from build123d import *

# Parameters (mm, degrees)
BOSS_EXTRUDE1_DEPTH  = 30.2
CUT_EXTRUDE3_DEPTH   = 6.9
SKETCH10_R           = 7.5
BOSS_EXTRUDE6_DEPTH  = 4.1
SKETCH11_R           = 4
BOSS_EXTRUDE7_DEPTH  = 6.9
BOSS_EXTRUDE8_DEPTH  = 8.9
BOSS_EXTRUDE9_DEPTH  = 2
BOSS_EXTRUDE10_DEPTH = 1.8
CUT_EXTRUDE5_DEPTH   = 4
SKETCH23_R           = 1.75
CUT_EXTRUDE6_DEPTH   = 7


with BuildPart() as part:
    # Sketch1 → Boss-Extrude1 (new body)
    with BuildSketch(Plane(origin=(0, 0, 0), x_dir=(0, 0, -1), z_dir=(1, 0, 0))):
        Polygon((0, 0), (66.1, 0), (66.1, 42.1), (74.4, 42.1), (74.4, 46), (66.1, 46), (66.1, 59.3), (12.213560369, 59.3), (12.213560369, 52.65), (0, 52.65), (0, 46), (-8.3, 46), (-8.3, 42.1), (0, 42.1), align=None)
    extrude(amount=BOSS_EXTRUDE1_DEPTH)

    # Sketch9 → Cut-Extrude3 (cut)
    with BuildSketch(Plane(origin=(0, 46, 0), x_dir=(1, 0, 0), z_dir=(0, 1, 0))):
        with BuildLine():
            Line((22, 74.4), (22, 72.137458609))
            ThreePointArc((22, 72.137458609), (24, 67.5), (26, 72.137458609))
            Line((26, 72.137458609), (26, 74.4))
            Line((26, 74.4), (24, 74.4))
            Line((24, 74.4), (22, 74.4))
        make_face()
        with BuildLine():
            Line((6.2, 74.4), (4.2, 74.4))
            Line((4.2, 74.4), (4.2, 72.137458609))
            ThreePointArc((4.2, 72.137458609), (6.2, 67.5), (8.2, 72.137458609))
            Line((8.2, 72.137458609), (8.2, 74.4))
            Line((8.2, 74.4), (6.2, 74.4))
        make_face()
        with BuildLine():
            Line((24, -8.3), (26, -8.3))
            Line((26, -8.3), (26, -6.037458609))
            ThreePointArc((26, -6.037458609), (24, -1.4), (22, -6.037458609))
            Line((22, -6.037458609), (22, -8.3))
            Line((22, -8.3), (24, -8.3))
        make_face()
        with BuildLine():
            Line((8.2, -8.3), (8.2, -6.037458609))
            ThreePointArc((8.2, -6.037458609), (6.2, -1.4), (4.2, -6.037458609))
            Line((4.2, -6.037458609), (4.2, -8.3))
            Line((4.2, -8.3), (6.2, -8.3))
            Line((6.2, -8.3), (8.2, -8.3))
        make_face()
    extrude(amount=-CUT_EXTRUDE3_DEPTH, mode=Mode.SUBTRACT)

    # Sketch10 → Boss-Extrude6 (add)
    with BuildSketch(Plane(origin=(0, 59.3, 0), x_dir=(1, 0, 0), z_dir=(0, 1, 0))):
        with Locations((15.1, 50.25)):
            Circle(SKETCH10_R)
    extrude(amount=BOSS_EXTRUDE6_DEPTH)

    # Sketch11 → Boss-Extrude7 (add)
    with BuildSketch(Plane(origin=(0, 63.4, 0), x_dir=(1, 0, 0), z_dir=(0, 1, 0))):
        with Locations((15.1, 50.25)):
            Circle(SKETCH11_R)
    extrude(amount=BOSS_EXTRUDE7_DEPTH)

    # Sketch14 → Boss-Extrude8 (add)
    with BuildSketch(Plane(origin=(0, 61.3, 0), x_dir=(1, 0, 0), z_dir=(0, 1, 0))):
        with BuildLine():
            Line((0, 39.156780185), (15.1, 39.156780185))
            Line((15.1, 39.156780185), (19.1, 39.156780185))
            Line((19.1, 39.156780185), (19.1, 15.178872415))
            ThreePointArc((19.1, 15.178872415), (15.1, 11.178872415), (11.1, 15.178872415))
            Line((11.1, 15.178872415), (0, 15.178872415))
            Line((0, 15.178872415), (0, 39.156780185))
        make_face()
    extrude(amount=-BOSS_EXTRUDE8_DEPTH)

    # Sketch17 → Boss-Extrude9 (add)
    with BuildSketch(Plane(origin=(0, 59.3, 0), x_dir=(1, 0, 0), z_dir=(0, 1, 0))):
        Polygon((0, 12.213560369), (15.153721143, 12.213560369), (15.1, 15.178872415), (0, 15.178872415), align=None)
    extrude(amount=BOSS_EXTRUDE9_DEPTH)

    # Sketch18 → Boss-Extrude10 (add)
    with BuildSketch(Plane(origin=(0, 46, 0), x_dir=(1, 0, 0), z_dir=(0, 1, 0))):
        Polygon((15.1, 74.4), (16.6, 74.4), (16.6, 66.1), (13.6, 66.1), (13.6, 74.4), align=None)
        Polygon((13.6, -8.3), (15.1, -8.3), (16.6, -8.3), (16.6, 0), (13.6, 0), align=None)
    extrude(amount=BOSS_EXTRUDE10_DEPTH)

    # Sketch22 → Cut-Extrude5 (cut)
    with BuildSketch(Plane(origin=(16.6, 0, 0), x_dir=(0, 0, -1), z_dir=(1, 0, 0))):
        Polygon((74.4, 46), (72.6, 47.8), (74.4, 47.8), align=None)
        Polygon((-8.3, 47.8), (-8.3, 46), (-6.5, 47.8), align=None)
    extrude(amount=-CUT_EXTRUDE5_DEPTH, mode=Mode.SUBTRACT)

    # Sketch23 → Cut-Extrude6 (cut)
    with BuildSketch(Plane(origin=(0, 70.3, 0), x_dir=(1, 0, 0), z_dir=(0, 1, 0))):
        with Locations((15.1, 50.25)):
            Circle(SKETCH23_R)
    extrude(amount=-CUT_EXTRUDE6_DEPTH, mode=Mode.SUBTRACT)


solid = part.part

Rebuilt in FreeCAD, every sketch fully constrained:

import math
import FreeCAD as App
import Part
import Sketcher

V = App.Vector

doc = App.newDocument("Part")
body = doc.addObject("PartDesign::Body", "Body")

sketch1 = body.newObject("Sketcher::SketchObject", "Sketch")
sketch1.AttachmentSupport = (doc.getObject("YZ_Plane"), [""])
sketch1.MapMode = "FlatFace"
sketch1.addGeometry([
    Part.LineSegment(V(0, 0, 0), V(0, -66.1, 0)),
    Part.LineSegment(V(0, -66.1, 0), V(42.1, -66.1, 0)),
    Part.LineSegment(V(42.1, -66.1, 0), V(42.1, -74.4, 0)),
    Part.LineSegment(V(42.1, -74.4, 0), V(46, -74.4, 0)),
    Part.LineSegment(V(46, -74.4, 0), V(46, -66.1, 0)),
    Part.LineSegment(V(46, -66.1, 0), V(59.3, -66.1, 0)),
    Part.LineSegment(V(59.3, -66.1, 0), V(59.3, -12.21356, 0)),
    Part.LineSegment(V(59.3, -12.21356, 0), V(52.65, -12.21356, 0)),
    Part.LineSegment(V(52.65, -12.21356, 0), V(52.65, 0, 0)),
    Part.LineSegment(V(52.65, 0, 0), V(46, 0, 0)),
    Part.LineSegment(V(46, 0, 0), V(46, 8.3, 0)),
    Part.LineSegment(V(46, 8.3, 0), V(42.1, 8.3, 0)),
    Part.LineSegment(V(42.1, 8.3, 0), V(42.1, 0, 0)),
    Part.LineSegment(V(42.1, 0, 0), V(0, 0, 0)),
], False)
sketch1.addConstraint([
    Sketcher.Constraint("Coincident", 0, 2, 1, 1),
    Sketcher.Constraint("Coincident", 1, 2, 2, 1),
    Sketcher.Constraint("Coincident", 2, 2, 3, 1),
    Sketcher.Constraint("Coincident", 3, 2, 4, 1),
    Sketcher.Constraint("Coincident", 4, 2, 5, 1),
    Sketcher.Constraint("Coincident", 5, 2, 6, 1),
    Sketcher.Constraint("Coincident", 6, 2, 7, 1),
    Sketcher.Constraint("Coincident", 7, 2, 8, 1),
    Sketcher.Constraint("Coincident", 8, 2, 9, 1),
    Sketcher.Constraint("Coincident", 9, 2, 10, 1),
    Sketcher.Constraint("Coincident", 10, 2, 11, 1),
    Sketcher.Constraint("Coincident", 11, 2, 12, 1),
    Sketcher.Constraint("Coincident", 12, 2, 13, 1),
    Sketcher.Constraint("Coincident", 13, 2, 0, 1),
    Sketcher.Constraint("Vertical", 0),
    Sketcher.Constraint("Horizontal", 1),
    Sketcher.Constraint("Vertical", 2),
    Sketcher.Constraint("Horizontal", 3),
    Sketcher.Constraint("Vertical", 4),
    Sketcher.Constraint("Horizontal", 5),
    Sketcher.Constraint("Vertical", 6),
    Sketcher.Constraint("Horizontal", 7),
    Sketcher.Constraint("Vertical", 8),
    Sketcher.Constraint("Horizontal", 9),
    Sketcher.Constraint("Vertical", 10),
    Sketcher.Constraint("Horizontal", 11),
    Sketcher.Constraint("Vertical", 12),
    Sketcher.Constraint("Horizontal", 13),
    Sketcher.Constraint("Coincident", 13, 2, -1, 1),
    Sketcher.Constraint("PointOnObject", 8, 2, -1),
    Sketcher.Constraint("Horizontal", 1, 2, 4, 2),
    Sketcher.Constraint("Vertical", 4, 2, 9, 2),
    Sketcher.Constraint("Vertical", 2, 2, 11, 2),
    Sketcher.Constraint("Equal", 7, 9),
    Sketcher.Constraint("Equal", 4, 10),
    Sketcher.Constraint("DistanceX", 1, 1, 1, 2, 42.1),
    Sketcher.Constraint("DistanceX", 3, 1, 3, 2, 3.9),
    Sketcher.Constraint("DistanceX", 5, 1, 5, 2, 13.3),
    Sketcher.Constraint("DistanceY", 0, 2, 0, 1, 66.1),
    Sketcher.Constraint("DistanceY", 2, 2, 2, 1, 8.3),
    Sketcher.Constraint("DistanceY", 6, 1, 6, 2, 53.88644),
])
pad1 = body.newObject("PartDesign::Pad", "Pad")
pad1.Profile = sketch1
pad1.Length = 30.2

sketch2 = body.newObject("Sketcher::SketchObject", "Sketch001")
sketch2.AttachmentSupport = (doc.getObject("XZ_Plane"), [""])
sketch2.MapMode = "FlatFace"
sketch2.AttachmentOffset = App.Placement(V(0, 0, -46), App.Rotation())
sketch2.addGeometry([
    Part.LineSegment(V(22, -74.4, 0), V(22, -72.137459, 0)),
    Part.ArcOfCircle(Part.Circle(V(24, -70.25, 0), V(0, 0, 1), 2.75), math.radians(-43.341758), math.radians(223.341758)),
    Part.LineSegment(V(26, -72.137459, 0), V(26, -74.4, 0)),
    Part.LineSegment(V(26, -74.4, 0), V(22, -74.4, 0)),
    Part.LineSegment(V(4.2, -74.4, 0), V(4.2, -72.137459, 0)),
    Part.ArcOfCircle(Part.Circle(V(6.2, -70.25, 0), V(0, 0, 1), 2.75), math.radians(-43.341758), math.radians(223.341758)),
    Part.LineSegment(V(8.2, -72.137459, 0), V(8.2, -74.4, 0)),
    Part.LineSegment(V(8.2, -74.4, 0), V(4.2, -74.4, 0)),
    Part.LineSegment(V(26, 8.3, 0), V(26, 6.037459, 0)),
    Part.ArcOfCircle(Part.Circle(V(24, 4.15, 0), V(0, 0, 1), 2.75), math.radians(136.658242), math.radians(403.341758)),
    Part.LineSegment(V(22, 6.037459, 0), V(22, 8.3, 0)),
    Part.LineSegment(V(22, 8.3, 0), V(26, 8.3, 0)),
    Part.LineSegment(V(8.2, 8.3, 0), V(8.2, 6.037459, 0)),
    Part.ArcOfCircle(Part.Circle(V(6.2, 4.15, 0), V(0, 0, 1), 2.75), math.radians(136.658242), math.radians(403.341758)),
    Part.LineSegment(V(4.2, 6.037459, 0), V(4.2, 8.3, 0)),
    Part.LineSegment(V(4.2, 8.3, 0), V(8.2, 8.3, 0)),
], False)
sketch2.addConstraint([
    Sketcher.Constraint("Coincident", 0, 2, 1, 2),
    Sketcher.Constraint("Coincident", 1, 1, 2, 1),
    Sketcher.Constraint("Coincident", 2, 2, 3, 1),
    Sketcher.Constraint("Coincident", 3, 2, 0, 1),
    Sketcher.Constraint("Coincident", 4, 2, 5, 2),
    Sketcher.Constraint("Coincident", 5, 1, 6, 1),
    Sketcher.Constraint("Coincident", 6, 2, 7, 1),
    Sketcher.Constraint("Coincident", 7, 2, 4, 1),
    Sketcher.Constraint("Coincident", 8, 2, 9, 2),
    Sketcher.Constraint("Coincident", 9, 1, 10, 1),
    Sketcher.Constraint("Coincident", 10, 2, 11, 1),
    Sketcher.Constraint("Coincident", 11, 2, 8, 1),
    Sketcher.Constraint("Coincident", 12, 2, 13, 2),
    Sketcher.Constraint("Coincident", 13, 1, 14, 1),
    Sketcher.Constraint("Coincident", 14, 2, 15, 1),
    Sketcher.Constraint("Coincident", 15, 2, 12, 1),
    Sketcher.Constraint("Vertical", 0),
    Sketcher.Constraint("Vertical", 2),
    Sketcher.Constraint("Horizontal", 3),
    Sketcher.Constraint("Vertical", 4),
    Sketcher.Constraint("Vertical", 6),
    Sketcher.Constraint("Horizontal", 7),
    Sketcher.Constraint("Vertical", 8),
    Sketcher.Constraint("Vertical", 10),
    Sketcher.Constraint("Horizontal", 11),
    Sketcher.Constraint("Vertical", 12),
    Sketcher.Constraint("Vertical", 14),
    Sketcher.Constraint("Horizontal", 15),
    Sketcher.Constraint("Equal", 1, 5),
    Sketcher.Constraint("Equal", 5, 9),
    Sketcher.Constraint("Equal", 9, 13),
    Sketcher.Constraint("Horizontal", 1, 3, 5, 3),
    Sketcher.Constraint("Horizontal", 9, 3, 13, 3),
    Sketcher.Constraint("Horizontal", 0, 2, 1, 1),
    Sketcher.Constraint("Horizontal", 1, 1, 4, 2),
    Sketcher.Constraint("Horizontal", 4, 2, 5, 1),
    Sketcher.Constraint("Horizontal", 3, 2, 6, 2),
    Sketcher.Constraint("Horizontal", 8, 2, 9, 1),
    Sketcher.Constraint("Horizontal", 9, 1, 12, 2),
    Sketcher.Constraint("Horizontal", 12, 2, 13, 1),
    Sketcher.Constraint("Horizontal", 11, 2, 14, 2),
    Sketcher.Constraint("Vertical", 1, 3, 9, 3),
    Sketcher.Constraint("Vertical", 5, 3, 13, 3),
    Sketcher.Constraint("Vertical", 2, 2, 8, 2),
    Sketcher.Constraint("Equal", 6, 8),
    Sketcher.Constraint("DistanceX", 3, 2, 3, 1, 4.0),
    Sketcher.Constraint("Radius", 1, 2.75),
    Sketcher.Constraint("DistanceX", -1, 1, 1, 3, 24.0),
    Sketcher.Constraint("DistanceX", -1, 1, 5, 3, 6.2),
    Sketcher.Constraint("DistanceY", 2, 2, -1, 1, 74.4),
    Sketcher.Constraint("DistanceY", -1, 1, 10, 2, 8.3),
    Sketcher.Constraint("DistanceY", 1, 3, 9, 3, 74.4),
])
pocket1 = body.newObject("PartDesign::Pocket", "Pocket")
pocket1.Profile = sketch2
pocket1.Length = 6.9
pocket1.Reversed = True

sketch3 = body.newObject("Sketcher::SketchObject", "Sketch002")
sketch3.AttachmentSupport = (doc.getObject("XZ_Plane"), [""])
sketch3.MapMode = "FlatFace"
sketch3.AttachmentOffset = App.Placement(V(0, 0, -59.3), App.Rotation())
sketch3.addGeometry(Part.Circle(V(15.1, -50.25, 0), V(0, 0, 1), 7.5), False)
sketch3.addConstraint([
    Sketcher.Constraint("Diameter", 0, 15.0),
    Sketcher.Constraint("DistanceX", -1, 1, 0, 3, 15.1),
    Sketcher.Constraint("DistanceY", 0, 3, -1, 1, 50.25),
])
pad2 = body.newObject("PartDesign::Pad", "Pad001")
pad2.Profile = sketch3
pad2.Length = 4.1
pad2.Reversed = True

sketch4 = body.newObject("Sketcher::SketchObject", "Sketch003")
sketch4.AttachmentSupport = (doc.getObject("XZ_Plane"), [""])
sketch4.MapMode = "FlatFace"
sketch4.AttachmentOffset = App.Placement(V(0, 0, -63.4), App.Rotation())
sketch4.addGeometry(Part.Circle(V(15.1, -50.25, 0), V(0, 0, 1), 4), False)
sketch4.addConstraint([
    Sketcher.Constraint("Diameter", 0, 8.0),
    Sketcher.Constraint("DistanceX", -1, 1, 0, 3, 15.1),
    Sketcher.Constraint("DistanceY", 0, 3, -1, 1, 50.25),
])
pad3 = body.newObject("PartDesign::Pad", "Pad002")
pad3.Profile = sketch4
pad3.Length = 6.9
pad3.Reversed = True

sketch5 = body.newObject("Sketcher::SketchObject", "Sketch004")
sketch5.AttachmentSupport = (doc.getObject("XZ_Plane"), [""])
sketch5.MapMode = "FlatFace"
sketch5.AttachmentOffset = App.Placement(V(0, 0, -61.3), App.Rotation())
sketch5.addGeometry([
    Part.LineSegment(V(19.1, -39.15678, 0), V(0, -39.15678, 0)),
    Part.LineSegment(V(0, -39.15678, 0), V(0, -15.178872, 0)),
    Part.LineSegment(V(0, -15.178872, 0), V(11.1, -15.178872, 0)),
    Part.ArcOfCircle(Part.Circle(V(15.1, -15.178872, 0), V(0, 0, 1), 4), math.radians(0), math.radians(180)),
    Part.LineSegment(V(19.1, -15.178872, 0), V(19.1, -39.15678, 0)),
], False)
sketch5.addConstraint([
    Sketcher.Constraint("Coincident", 0, 2, 1, 1),
    Sketcher.Constraint("Coincident", 1, 2, 2, 1),
    Sketcher.Constraint("Coincident", 2, 2, 3, 2),
    Sketcher.Constraint("Tangent", 3, 1, 4, 1),
    Sketcher.Constraint("Coincident", 4, 2, 0, 1),
    Sketcher.Constraint("Horizontal", 0),
    Sketcher.Constraint("Vertical", 1),
    Sketcher.Constraint("Horizontal", 2),
    Sketcher.Constraint("Vertical", 4),
    Sketcher.Constraint("PointOnObject", 0, 2, -2),
    Sketcher.Constraint("Horizontal", 3, 3, 1, 2),
    Sketcher.Constraint("Radius", 3, 4.0),
    Sketcher.Constraint("DistanceX", 0, 2, 0, 1, 19.1),
    Sketcher.Constraint("DistanceY", 1, 1, 1, 2, 23.977908),
    Sketcher.Constraint("DistanceY", 0, 2, -1, 1, 39.15678),
])
pad4 = body.newObject("PartDesign::Pad", "Pad003")
pad4.Profile = sketch5
pad4.Length = 8.9

sketch6 = body.newObject("Sketcher::SketchObject", "Sketch005")
sketch6.AttachmentSupport = (doc.getObject("XZ_Plane"), [""])
sketch6.MapMode = "FlatFace"
sketch6.AttachmentOffset = App.Placement(V(0, 0, -59.3), App.Rotation())
sketch6.addGeometry([
    Part.LineSegment(V(0, -12.21356, 0), V(15.153721, -12.21356, 0)),
    Part.LineSegment(V(15.153721, -12.21356, 0), V(15.1, -15.178872, 0)),
    Part.LineSegment(V(15.1, -15.178872, 0), V(0, -15.178872, 0)),
    Part.LineSegment(V(0, -15.178872, 0), V(0, -12.21356, 0)),
], False)
sketch6.addConstraint([
    Sketcher.Constraint("Coincident", 0, 2, 1, 1),
    Sketcher.Constraint("Coincident", 1, 2, 2, 1),
    Sketcher.Constraint("Coincident", 2, 2, 3, 1),
    Sketcher.Constraint("Coincident", 3, 2, 0, 1),
    Sketcher.Constraint("Horizontal", 0),
    Sketcher.Constraint("Horizontal", 2),
    Sketcher.Constraint("Vertical", 3),
    Sketcher.Constraint("PointOnObject", 2, 2, -2),
    Sketcher.Constraint("DistanceX", 2, 2, 2, 1, 15.1),
    Sketcher.Constraint("Distance", 1, 2.965799),
    Sketcher.Constraint("DistanceX", 0, 1, 0, 2, 15.153721),
    Sketcher.Constraint("DistanceY", 0, 2, -1, 1, 12.21356),
])
pad5 = body.newObject("PartDesign::Pad", "Pad004")
pad5.Profile = sketch6
pad5.Length = 2
pad5.Reversed = True

sketch7 = body.newObject("Sketcher::SketchObject", "Sketch006")
sketch7.AttachmentSupport = (doc.getObject("XZ_Plane"), [""])
sketch7.MapMode = "FlatFace"
sketch7.AttachmentOffset = App.Placement(V(0, 0, -46), App.Rotation())
sketch7.addGeometry([
    Part.LineSegment(V(16.6, -74.4, 0), V(13.6, -74.4, 0)),
    Part.LineSegment(V(13.6, -74.4, 0), V(13.6, -66.1, 0)),
    Part.LineSegment(V(13.6, -66.1, 0), V(16.6, -66.1, 0)),
    Part.LineSegment(V(16.6, -66.1, 0), V(16.6, -74.4, 0)),
    Part.LineSegment(V(13.6, 8.3, 0), V(16.6, 8.3, 0)),
    Part.LineSegment(V(16.6, 8.3, 0), V(16.6, 0, 0)),
    Part.LineSegment(V(16.6, 0, 0), V(13.6, 0, 0)),
    Part.LineSegment(V(13.6, 0, 0), V(13.6, 8.3, 0)),
], False)
sketch7.addConstraint([
    Sketcher.Constraint("Coincident", 0, 2, 1, 1),
    Sketcher.Constraint("Coincident", 1, 2, 2, 1),
    Sketcher.Constraint("Coincident", 2, 2, 3, 1),
    Sketcher.Constraint("Coincident", 3, 2, 0, 1),
    Sketcher.Constraint("Coincident", 4, 2, 5, 1),
    Sketcher.Constraint("Coincident", 5, 2, 6, 1),
    Sketcher.Constraint("Coincident", 6, 2, 7, 1),
    Sketcher.Constraint("Coincident", 7, 2, 4, 1),
    Sketcher.Constraint("Horizontal", 0),
    Sketcher.Constraint("Vertical", 1),
    Sketcher.Constraint("Horizontal", 2),
    Sketcher.Constraint("Vertical", 3),
    Sketcher.Constraint("Horizontal", 4),
    Sketcher.Constraint("Vertical", 5),
    Sketcher.Constraint("Horizontal", 6),
    Sketcher.Constraint("Vertical", 7),
    Sketcher.Constraint("PointOnObject", 5, 2, -1),
    Sketcher.Constraint("Vertical", 3, 2, 4, 2),
    Sketcher.Constraint("Vertical", 1, 2, 6, 2),
    Sketcher.Constraint("Equal", 3, 5),
    Sketcher.Constraint("DistanceX", 0, 2, 0, 1, 3.0),
    Sketcher.Constraint("DistanceY", 1, 1, 1, 2, 8.3),
    Sketcher.Constraint("DistanceX", -1, 1, 0, 2, 13.6),
    Sketcher.Constraint("DistanceY", 0, 2, -1, 1, 74.4),
])
pad6 = body.newObject("PartDesign::Pad", "Pad005")
pad6.Profile = sketch7
pad6.Length = 1.8
pad6.Reversed = True

sketch8 = body.newObject("Sketcher::SketchObject", "Sketch007")
sketch8.AttachmentSupport = (doc.getObject("YZ_Plane"), [""])
sketch8.MapMode = "FlatFace"
sketch8.AttachmentOffset = App.Placement(V(0, 0, 16.6), App.Rotation())
sketch8.addGeometry([
    Part.LineSegment(V(47.8, -72.6, 0), V(46, -74.4, 0)),
    Part.LineSegment(V(46, -74.4, 0), V(47.8, -74.4, 0)),
    Part.LineSegment(V(47.8, -74.4, 0), V(47.8, -72.6, 0)),
    Part.LineSegment(V(47.8, 8.3, 0), V(46, 8.3, 0)),
    Part.LineSegment(V(46, 8.3, 0), V(47.8, 6.5, 0)),
    Part.LineSegment(V(47.8, 6.5, 0), V(47.8, 8.3, 0)),
], False)
sketch8.addConstraint([
    Sketcher.Constraint("Coincident", 0, 2, 1, 1),
    Sketcher.Constraint("Coincident", 1, 2, 2, 1),
    Sketcher.Constraint("Coincident", 2, 2, 0, 1),
    Sketcher.Constraint("Coincident", 3, 2, 4, 1),
    Sketcher.Constraint("Coincident", 4, 2, 5, 1),
    Sketcher.Constraint("Coincident", 5, 2, 3, 1),
    Sketcher.Constraint("Horizontal", 1),
    Sketcher.Constraint("Vertical", 2),
    Sketcher.Constraint("Horizontal", 3),
    Sketcher.Constraint("Vertical", 5),
    Sketcher.Constraint("Perpendicular", 0, 4),
    Sketcher.Constraint("Vertical", 0, 2, 3, 2),
    Sketcher.Constraint("Vertical", 2, 2, 4, 2),
    Sketcher.Constraint("Equal", 3, 2),
    Sketcher.Constraint("DistanceX", 1, 1, 1, 2, 1.8),
    Sketcher.Constraint("DistanceX", -1, 1, 0, 2, 46.0),
    Sketcher.Constraint("DistanceY", 0, 2, -1, 1, 74.4),
    Sketcher.Constraint("DistanceY", -1, 1, 3, 2, 8.3),
])
pocket2 = body.newObject("PartDesign::Pocket", "Pocket001")
pocket2.Profile = sketch8
pocket2.Length = 4

sketch9 = body.newObject("Sketcher::SketchObject", "Sketch008")
sketch9.AttachmentSupport = (doc.getObject("XZ_Plane"), [""])
sketch9.MapMode = "FlatFace"
sketch9.AttachmentOffset = App.Placement(V(0, 0, -70.3), App.Rotation())
sketch9.addGeometry(Part.Circle(V(15.1, -50.25, 0), V(0, 0, 1), 1.75), False)
sketch9.addConstraint([
    Sketcher.Constraint("Diameter", 0, 3.5),
    Sketcher.Constraint("DistanceX", -1, 1, 0, 3, 15.1),
    Sketcher.Constraint("DistanceY", 0, 3, -1, 1, 50.25),
])
pocket3 = body.newObject("PartDesign::Pocket", "Pocket002")
pocket3.Profile = sketch9
pocket3.Length = 7
pocket3.Reversed = True

doc.recompute()
